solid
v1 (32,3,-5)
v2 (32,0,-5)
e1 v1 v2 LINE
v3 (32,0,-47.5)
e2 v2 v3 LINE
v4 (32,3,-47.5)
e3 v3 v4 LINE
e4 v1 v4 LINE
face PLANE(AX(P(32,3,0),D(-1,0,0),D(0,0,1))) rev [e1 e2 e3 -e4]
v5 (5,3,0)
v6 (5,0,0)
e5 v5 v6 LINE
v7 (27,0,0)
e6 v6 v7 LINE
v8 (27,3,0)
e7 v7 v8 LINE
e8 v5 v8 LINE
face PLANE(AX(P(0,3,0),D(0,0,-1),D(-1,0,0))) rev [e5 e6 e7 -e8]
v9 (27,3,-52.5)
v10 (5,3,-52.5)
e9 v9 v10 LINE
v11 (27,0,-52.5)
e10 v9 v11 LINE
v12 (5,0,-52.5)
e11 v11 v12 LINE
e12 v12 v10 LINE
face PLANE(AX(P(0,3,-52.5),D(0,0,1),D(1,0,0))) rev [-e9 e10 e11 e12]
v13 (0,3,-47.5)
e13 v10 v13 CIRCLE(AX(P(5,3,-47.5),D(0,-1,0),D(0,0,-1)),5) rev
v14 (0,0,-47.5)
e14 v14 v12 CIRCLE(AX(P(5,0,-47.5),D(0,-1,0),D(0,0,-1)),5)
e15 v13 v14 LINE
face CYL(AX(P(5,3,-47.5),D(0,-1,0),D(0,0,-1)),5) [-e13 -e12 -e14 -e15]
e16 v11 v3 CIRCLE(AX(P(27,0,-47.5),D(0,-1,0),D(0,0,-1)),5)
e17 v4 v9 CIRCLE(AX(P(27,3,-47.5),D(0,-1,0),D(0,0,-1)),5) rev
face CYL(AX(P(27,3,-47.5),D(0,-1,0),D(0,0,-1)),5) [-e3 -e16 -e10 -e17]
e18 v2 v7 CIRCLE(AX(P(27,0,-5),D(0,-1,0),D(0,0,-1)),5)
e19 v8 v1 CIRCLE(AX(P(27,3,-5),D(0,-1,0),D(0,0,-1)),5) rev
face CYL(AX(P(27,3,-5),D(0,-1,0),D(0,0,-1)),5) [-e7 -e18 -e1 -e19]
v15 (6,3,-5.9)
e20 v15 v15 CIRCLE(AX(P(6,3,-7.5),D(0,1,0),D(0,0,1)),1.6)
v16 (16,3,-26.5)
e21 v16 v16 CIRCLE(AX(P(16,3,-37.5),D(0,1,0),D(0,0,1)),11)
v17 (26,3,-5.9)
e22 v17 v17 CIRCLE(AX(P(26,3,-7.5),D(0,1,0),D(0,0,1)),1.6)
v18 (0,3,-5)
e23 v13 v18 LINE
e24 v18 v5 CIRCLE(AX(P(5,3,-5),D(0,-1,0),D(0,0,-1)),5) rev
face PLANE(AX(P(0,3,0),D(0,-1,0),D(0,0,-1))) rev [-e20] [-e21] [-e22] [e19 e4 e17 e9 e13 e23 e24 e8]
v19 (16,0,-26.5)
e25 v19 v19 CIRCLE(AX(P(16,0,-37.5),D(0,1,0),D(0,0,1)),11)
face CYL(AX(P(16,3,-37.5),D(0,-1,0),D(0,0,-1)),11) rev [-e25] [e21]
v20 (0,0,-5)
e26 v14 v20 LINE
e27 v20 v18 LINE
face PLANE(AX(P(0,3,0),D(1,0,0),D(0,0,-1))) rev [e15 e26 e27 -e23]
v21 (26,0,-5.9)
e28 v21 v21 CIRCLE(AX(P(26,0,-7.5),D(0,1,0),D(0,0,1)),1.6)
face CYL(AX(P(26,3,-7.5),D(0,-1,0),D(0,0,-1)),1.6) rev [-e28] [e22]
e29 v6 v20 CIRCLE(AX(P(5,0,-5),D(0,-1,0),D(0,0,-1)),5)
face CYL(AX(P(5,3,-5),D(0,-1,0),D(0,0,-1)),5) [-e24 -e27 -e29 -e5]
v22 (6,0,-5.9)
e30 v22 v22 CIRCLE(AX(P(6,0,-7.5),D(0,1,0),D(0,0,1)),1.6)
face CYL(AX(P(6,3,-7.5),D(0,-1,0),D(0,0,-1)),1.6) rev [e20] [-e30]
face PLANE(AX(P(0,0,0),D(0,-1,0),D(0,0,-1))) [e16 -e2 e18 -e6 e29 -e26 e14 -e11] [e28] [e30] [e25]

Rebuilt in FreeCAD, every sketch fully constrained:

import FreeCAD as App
import Part
import Sketcher


def edges_at(feature, points):
    """Names of the edges that pass closest to the given points."""
    edges = feature.Shape.Edges
    near = lambda p: min(range(len(edges)), key=lambda i: edges[i].distToShape(Part.Vertex(*p))[0])
    return sorted({f"Edge{near(p) + 1}" for p in points})


def add_polygon(sketch, points):
    """Adds a closed chain of lines whose ends are joined by coincident constraints."""
    first, n = sketch.GeometryCount, len(points)
    for a, b in zip(points, points[1:] + points[:1]):
        sketch.addGeometry(Part.LineSegment(App.Vector(*a, 0), App.Vector(*b, 0)), False)
    for i in range(n):
        sketch.addConstraint(Sketcher.Constraint("Coincident", first + i, 2, first + (i + 1) % n, 1))

doc = App.newDocument("Part")
body = doc.addObject("PartDesign::Body", "Body")

sketch1 = doc.addObject("Sketcher::SketchObject", "Sketch")
body.addObject(sketch1)
sketch1.AttachmentSupport = (doc.XZ_Plane, [""])
sketch1.MapMode = "FlatFace"
add_polygon(sketch1, [(0, -52.5), (0, 0), (32, 0), (32, -52.5)])
sketch1.addGeometry(Part.Circle(App.Vector(6, -7.5, 0), App.Vector(0, 0, 1), 1.6), False)
sketch1.addGeometry(Part.Circle(App.Vector(26, -7.5, 0), App.Vector(0, 0, 1), 1.6), False)
sketch1.addGeometry(Part.Circle(App.Vector(16, -37.5, 0), App.Vector(0, 0, 1), 11), False)
sketch1.addConstraint(Sketcher.Constraint("Vertical", 0))
sketch1.addConstraint(Sketcher.Constraint("Horizontal", 1))
sketch1.addConstraint(Sketcher.Constraint("Vertical", 2))
sketch1.addConstraint(Sketcher.Constraint("Horizontal", 3))
sketch1.addConstraint(Sketcher.Constraint("Coincident", 0, 2, -1, 1))
sketch1.addConstraint(Sketcher.Constraint("Equal", 4, 5))
sketch1.addConstraint(Sketcher.Constraint("Horizontal", 4, 3, 5, 3))
sketch1.addConstraint(Sketcher.Constraint("Diameter", 6, 22.0))
sketch1.addConstraint(Sketcher.Constraint("Diameter", 4, 3.2))
sketch1.addConstraint(Sketcher.Constraint("DistanceX", 1, 1, 1, 2, 32.0))
sketch1.addConstraint(Sketcher.Constraint("DistanceY", 0, 1, 0, 2, 52.5))
sketch1.addConstraint(Sketcher.Constraint("DistanceX", -1, 1, 4, 3, 6.0))
sketch1.addConstraint(Sketcher.Constraint("DistanceX", -1, 1, 5, 3, 26.0))
sketch1.addConstraint(Sketcher.Constraint("DistanceX", -1, 1, 6, 3, 16.0))
sketch1.addConstraint(Sketcher.Constraint("DistanceY", 6, 3, 4, 3, 30.0))
sketch1.addConstraint(Sketcher.Constraint("DistanceY", 2, 2, 6, 3, 15.0))
pad1 = doc.addObject("PartDesign::Pad", "Pad")
body.addObject(pad1)
pad1.Profile = sketch1
pad1.Length = 3
pad1.Reversed = True
doc.recompute()

fillet = doc.addObject("PartDesign::Fillet", "Fillet")
body.addObject(fillet)
fillet.Base = (pad1, edges_at(pad1, [
    (0, 1.5, -52.5),
    (32, 1.5, -52.5),
    (32, 1.5, 0),
    (0, 1.5, 0),
]))
fillet.Radius = 5

doc.recompute()
